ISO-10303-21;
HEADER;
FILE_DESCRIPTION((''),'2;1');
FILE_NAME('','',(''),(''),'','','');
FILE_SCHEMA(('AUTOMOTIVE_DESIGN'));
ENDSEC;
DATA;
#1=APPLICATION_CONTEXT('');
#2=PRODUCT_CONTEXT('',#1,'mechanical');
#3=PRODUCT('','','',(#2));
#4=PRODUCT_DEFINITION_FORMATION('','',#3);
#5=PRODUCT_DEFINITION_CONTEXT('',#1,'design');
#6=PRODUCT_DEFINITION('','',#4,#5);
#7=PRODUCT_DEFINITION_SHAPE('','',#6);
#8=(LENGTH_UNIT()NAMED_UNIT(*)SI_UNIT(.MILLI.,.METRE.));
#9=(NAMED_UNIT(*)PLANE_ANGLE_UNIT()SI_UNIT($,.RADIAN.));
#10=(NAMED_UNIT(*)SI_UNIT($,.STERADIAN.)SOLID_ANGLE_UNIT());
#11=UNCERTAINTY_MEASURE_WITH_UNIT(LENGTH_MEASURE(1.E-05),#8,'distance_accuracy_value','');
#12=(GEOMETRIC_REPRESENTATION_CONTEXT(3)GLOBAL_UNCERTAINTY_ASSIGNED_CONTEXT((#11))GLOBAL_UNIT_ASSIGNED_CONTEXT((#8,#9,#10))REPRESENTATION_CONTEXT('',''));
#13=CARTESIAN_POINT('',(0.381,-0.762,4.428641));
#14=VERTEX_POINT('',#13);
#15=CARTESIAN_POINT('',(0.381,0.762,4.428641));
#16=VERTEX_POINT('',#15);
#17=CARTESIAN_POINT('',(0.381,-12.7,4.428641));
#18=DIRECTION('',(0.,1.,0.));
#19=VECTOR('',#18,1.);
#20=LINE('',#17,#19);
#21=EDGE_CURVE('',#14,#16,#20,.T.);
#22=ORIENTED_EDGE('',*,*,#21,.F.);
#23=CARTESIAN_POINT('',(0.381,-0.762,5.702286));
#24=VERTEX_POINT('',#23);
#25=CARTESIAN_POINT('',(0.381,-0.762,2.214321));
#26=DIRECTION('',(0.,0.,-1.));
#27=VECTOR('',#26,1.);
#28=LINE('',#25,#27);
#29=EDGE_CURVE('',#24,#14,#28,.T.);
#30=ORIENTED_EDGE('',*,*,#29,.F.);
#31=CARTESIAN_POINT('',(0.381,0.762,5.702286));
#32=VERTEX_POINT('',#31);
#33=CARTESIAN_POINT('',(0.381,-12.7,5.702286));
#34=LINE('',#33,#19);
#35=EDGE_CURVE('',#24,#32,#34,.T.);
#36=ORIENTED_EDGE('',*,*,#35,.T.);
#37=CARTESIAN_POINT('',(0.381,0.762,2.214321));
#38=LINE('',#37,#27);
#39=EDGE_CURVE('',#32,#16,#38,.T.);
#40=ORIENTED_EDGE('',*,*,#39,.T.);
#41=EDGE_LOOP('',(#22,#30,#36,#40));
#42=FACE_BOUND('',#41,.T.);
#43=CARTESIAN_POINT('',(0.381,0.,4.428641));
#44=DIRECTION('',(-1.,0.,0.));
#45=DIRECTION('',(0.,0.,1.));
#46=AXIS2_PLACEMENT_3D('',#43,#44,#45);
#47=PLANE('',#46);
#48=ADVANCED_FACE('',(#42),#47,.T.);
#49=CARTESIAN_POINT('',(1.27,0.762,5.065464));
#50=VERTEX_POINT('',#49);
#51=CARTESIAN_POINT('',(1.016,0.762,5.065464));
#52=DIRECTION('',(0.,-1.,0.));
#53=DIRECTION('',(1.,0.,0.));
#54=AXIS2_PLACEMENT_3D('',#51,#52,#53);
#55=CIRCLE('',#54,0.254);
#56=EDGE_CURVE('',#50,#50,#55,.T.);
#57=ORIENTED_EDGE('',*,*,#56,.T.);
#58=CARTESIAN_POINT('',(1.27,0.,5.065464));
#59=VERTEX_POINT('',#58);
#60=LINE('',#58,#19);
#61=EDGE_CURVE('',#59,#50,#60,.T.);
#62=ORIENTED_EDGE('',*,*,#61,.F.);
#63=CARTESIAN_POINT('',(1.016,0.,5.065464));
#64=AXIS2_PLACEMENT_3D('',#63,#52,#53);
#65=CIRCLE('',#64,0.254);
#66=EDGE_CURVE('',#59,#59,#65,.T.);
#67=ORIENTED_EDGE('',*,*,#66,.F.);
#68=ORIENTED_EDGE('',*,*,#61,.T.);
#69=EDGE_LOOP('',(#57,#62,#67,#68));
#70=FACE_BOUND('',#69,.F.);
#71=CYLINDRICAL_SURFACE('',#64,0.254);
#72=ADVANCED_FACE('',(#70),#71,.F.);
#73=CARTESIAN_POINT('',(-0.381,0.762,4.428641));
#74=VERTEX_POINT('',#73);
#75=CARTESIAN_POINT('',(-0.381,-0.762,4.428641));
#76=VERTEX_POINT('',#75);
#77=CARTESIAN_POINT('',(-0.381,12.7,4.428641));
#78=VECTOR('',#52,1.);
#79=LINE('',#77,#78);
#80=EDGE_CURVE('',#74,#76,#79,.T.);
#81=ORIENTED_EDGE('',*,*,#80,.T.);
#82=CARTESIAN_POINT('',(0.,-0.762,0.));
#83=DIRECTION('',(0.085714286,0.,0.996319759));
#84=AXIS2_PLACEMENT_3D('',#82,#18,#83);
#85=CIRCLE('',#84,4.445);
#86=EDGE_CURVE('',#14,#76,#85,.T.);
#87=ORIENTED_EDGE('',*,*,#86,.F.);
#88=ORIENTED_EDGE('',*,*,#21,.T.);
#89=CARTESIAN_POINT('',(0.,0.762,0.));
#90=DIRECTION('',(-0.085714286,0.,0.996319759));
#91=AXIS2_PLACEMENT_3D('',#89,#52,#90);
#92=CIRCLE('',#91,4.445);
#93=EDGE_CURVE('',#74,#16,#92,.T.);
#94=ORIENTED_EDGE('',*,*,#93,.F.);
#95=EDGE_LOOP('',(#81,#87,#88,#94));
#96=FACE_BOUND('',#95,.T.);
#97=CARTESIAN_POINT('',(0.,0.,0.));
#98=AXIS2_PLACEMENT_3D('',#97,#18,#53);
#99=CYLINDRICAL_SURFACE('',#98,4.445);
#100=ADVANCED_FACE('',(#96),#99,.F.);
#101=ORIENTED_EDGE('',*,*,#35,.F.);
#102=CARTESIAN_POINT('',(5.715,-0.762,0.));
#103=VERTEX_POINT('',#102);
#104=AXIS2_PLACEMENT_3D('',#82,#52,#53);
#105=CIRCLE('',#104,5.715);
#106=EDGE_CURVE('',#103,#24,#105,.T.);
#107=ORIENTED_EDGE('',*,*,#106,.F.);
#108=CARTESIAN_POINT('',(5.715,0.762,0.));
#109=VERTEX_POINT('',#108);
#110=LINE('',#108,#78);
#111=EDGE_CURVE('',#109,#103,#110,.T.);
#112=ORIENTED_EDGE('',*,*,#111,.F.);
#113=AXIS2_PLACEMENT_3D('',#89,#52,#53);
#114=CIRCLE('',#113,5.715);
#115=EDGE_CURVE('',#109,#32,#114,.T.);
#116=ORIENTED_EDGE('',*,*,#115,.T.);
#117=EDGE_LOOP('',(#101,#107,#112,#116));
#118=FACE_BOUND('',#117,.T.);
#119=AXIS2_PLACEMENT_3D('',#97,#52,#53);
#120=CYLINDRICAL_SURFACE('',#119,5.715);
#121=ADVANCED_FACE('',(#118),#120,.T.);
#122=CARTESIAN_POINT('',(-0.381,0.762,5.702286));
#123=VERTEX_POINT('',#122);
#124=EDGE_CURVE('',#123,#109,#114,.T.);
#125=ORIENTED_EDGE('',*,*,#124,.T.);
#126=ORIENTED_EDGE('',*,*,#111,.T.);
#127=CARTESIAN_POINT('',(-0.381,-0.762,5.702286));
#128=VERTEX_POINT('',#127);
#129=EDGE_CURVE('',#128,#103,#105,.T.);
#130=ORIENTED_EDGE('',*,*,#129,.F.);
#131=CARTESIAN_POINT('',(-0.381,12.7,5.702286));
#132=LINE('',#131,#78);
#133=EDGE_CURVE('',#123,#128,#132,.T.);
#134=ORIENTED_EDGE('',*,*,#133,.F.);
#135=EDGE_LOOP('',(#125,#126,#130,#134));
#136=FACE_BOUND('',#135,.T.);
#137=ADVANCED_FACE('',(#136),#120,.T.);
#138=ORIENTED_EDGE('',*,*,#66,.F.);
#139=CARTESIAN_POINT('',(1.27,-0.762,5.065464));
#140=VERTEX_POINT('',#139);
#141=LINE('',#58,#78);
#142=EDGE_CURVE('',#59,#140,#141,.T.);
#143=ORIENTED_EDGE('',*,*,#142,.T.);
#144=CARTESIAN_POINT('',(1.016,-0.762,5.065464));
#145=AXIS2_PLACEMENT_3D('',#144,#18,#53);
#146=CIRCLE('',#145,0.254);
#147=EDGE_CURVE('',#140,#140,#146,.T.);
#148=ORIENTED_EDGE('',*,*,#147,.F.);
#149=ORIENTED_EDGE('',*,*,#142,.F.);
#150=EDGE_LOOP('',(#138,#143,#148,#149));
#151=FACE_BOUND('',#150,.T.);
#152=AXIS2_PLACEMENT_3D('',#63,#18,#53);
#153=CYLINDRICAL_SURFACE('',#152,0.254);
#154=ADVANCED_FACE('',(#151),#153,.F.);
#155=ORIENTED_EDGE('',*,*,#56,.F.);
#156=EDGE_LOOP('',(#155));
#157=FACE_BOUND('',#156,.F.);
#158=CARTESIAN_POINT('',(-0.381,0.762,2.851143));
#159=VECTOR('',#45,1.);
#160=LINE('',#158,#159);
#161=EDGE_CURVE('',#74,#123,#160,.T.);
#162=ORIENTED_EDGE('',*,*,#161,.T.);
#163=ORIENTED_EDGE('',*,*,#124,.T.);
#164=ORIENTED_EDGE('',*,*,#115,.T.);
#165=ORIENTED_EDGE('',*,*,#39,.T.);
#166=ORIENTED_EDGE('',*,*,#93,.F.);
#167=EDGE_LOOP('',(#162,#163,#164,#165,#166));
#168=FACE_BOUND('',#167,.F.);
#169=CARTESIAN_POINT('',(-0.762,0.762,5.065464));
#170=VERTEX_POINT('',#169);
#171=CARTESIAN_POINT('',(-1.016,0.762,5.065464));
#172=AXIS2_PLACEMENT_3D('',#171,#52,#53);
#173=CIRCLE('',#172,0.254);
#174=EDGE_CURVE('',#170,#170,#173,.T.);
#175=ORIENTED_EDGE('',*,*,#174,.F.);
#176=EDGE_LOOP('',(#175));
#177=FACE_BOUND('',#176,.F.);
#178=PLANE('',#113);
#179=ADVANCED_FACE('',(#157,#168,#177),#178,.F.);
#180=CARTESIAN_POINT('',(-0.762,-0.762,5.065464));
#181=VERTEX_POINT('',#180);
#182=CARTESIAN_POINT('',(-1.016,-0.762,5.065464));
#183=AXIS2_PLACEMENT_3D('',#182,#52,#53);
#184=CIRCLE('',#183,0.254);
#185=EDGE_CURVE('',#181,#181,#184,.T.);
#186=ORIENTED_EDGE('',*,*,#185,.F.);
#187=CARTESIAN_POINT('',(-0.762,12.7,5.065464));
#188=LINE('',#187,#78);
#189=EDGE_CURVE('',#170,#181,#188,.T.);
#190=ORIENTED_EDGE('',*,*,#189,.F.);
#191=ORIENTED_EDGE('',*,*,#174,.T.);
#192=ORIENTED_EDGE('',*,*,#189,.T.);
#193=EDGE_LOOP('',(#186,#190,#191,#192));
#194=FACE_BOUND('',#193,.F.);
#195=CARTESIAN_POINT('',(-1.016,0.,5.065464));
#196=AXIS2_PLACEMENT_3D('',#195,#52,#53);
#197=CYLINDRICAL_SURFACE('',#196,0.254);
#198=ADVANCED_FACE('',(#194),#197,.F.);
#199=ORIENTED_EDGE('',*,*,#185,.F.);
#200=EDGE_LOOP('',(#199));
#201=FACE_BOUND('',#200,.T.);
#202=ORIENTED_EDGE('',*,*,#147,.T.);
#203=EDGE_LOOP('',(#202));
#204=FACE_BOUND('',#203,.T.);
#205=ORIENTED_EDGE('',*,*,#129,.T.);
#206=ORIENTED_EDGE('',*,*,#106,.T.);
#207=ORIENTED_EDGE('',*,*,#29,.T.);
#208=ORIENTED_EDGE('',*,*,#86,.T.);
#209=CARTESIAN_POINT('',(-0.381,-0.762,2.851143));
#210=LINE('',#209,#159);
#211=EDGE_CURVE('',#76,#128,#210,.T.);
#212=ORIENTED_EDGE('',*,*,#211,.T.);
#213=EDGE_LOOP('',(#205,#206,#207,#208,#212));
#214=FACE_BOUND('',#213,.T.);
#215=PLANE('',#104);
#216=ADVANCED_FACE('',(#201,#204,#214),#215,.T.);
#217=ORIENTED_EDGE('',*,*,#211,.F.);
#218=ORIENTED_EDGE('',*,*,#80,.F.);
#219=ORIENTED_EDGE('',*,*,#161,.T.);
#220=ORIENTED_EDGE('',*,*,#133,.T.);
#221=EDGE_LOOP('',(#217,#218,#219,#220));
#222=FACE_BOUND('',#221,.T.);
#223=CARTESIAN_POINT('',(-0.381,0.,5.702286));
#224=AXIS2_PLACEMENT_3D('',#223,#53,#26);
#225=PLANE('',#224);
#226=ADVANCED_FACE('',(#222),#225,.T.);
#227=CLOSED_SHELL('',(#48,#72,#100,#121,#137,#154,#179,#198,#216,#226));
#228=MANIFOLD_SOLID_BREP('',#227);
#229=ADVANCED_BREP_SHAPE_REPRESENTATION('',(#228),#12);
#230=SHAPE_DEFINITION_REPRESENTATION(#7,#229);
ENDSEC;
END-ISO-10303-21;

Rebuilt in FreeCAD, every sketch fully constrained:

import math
import FreeCAD as App
import Part
import Sketcher

V = App.Vector
Q = App.Units.Quantity

doc = App.newDocument("Part")
body = doc.addObject("PartDesign::Body", "Body")

# Sketch on XZ plane
sketch1 = body.newObject("Sketcher::SketchObject", "Sketch")
sketch1.AttachmentSupport = (doc.getObject("XZ_Plane"), [""])
sketch1.MapMode = "FlatFace"
sketch1.addGeometry([
    Part.Circle(V(0, 0, 0), V(0, 0, 1), 5.7),
    Part.Circle(V(0, 0, 0), V(0, 0, 1), 4.4),
], False)
sketch1.addConstraint([
    Sketcher.Constraint("Coincident", 0, 3, -1, 1),
    Sketcher.Constraint("Coincident", 1, 3, -1, 1),
    Sketcher.Constraint("Diameter", 0, Q("0.45 in")),
    Sketcher.Constraint("Diameter", 1, Q("0.35 in")),
])
pad1 = body.newObject("PartDesign::Pad", "Pad")
pad1.Profile = sketch1
pad1.Length = Q("0.06 in")
pad1.Midplane = True

# Sketch on XZ plane
sketch2 = body.newObject("Sketcher::SketchObject", "Sketch001")
sketch2.AttachmentSupport = (doc.getObject("XZ_Plane"), [""])
sketch2.MapMode = "FlatFace"
sketch2.addGeometry([
    Part.ArcOfCircle(Part.Circle(V(0, 0, 0), V(0, 0, 1), 5.71), math.radians(86.18), math.radians(93.82)),  # 0
    Part.LineSegment(V(-0.38, 5.7, 0), V(-0.38, 4.43, 0)),  # 1
    Part.ArcOfCircle(Part.Circle(V(0, 0, 0), V(0, 0, 1), 4.44), math.radians(85.08), math.radians(94.92)),  # 2
    Part.LineSegment(V(0.38, 4.43, 0), V(0.38, 5.7, 0)),  # 3
    Part.Circle(V(1.02, 5.07, 0), V(0, 0, 1), 0.25),  # 4
    Part.Circle(V(-1.02, 5.07, 0), V(0, 0, 1), 0.25),  # 5
], False)
sketch2.addConstraint([
    Sketcher.Constraint("Coincident", 0, 2, 1, 1),
    Sketcher.Constraint("Coincident", 1, 2, 2, 2),
    Sketcher.Constraint("Coincident", 2, 1, 3, 1),
    Sketcher.Constraint("Coincident", 3, 2, 0, 1),
    Sketcher.Constraint("Vertical", 1),
    Sketcher.Constraint("Vertical", 3),
    Sketcher.Constraint("Coincident", 0, 3, -1, 1),
    Sketcher.Constraint("Coincident", 2, 3, -1, 1),
    Sketcher.Constraint("Equal", 4, 5),
    Sketcher.Constraint("Symmetric", 4, 3, 5, 3, -2),
    Sketcher.Constraint("Horizontal", 1, 2, 2, 1),
    Sketcher.Constraint("Diameter", 4, Q("0.02 in")),
    Sketcher.Constraint("Radius", 0, Q("0.225 in")),
    Sketcher.Constraint("Radius", 2, Q("0.175 in")),
    Sketcher.Constraint("DistanceX", -1, 1, 4, 3, Q("0.04 in")),
    Sketcher.Constraint("DistanceX", 1, 2, 2, 1, Q("0.03 in")),
    Sketcher.Constraint("DistanceY", -1, 1, 4, 3, 5.065464),
])
pocket1 = body.newObject("PartDesign::Pocket", "Pocket")
pocket1.Profile = sketch2
pocket1.Length = Q("1 in")
pocket1.Midplane = True

doc.recompute()
